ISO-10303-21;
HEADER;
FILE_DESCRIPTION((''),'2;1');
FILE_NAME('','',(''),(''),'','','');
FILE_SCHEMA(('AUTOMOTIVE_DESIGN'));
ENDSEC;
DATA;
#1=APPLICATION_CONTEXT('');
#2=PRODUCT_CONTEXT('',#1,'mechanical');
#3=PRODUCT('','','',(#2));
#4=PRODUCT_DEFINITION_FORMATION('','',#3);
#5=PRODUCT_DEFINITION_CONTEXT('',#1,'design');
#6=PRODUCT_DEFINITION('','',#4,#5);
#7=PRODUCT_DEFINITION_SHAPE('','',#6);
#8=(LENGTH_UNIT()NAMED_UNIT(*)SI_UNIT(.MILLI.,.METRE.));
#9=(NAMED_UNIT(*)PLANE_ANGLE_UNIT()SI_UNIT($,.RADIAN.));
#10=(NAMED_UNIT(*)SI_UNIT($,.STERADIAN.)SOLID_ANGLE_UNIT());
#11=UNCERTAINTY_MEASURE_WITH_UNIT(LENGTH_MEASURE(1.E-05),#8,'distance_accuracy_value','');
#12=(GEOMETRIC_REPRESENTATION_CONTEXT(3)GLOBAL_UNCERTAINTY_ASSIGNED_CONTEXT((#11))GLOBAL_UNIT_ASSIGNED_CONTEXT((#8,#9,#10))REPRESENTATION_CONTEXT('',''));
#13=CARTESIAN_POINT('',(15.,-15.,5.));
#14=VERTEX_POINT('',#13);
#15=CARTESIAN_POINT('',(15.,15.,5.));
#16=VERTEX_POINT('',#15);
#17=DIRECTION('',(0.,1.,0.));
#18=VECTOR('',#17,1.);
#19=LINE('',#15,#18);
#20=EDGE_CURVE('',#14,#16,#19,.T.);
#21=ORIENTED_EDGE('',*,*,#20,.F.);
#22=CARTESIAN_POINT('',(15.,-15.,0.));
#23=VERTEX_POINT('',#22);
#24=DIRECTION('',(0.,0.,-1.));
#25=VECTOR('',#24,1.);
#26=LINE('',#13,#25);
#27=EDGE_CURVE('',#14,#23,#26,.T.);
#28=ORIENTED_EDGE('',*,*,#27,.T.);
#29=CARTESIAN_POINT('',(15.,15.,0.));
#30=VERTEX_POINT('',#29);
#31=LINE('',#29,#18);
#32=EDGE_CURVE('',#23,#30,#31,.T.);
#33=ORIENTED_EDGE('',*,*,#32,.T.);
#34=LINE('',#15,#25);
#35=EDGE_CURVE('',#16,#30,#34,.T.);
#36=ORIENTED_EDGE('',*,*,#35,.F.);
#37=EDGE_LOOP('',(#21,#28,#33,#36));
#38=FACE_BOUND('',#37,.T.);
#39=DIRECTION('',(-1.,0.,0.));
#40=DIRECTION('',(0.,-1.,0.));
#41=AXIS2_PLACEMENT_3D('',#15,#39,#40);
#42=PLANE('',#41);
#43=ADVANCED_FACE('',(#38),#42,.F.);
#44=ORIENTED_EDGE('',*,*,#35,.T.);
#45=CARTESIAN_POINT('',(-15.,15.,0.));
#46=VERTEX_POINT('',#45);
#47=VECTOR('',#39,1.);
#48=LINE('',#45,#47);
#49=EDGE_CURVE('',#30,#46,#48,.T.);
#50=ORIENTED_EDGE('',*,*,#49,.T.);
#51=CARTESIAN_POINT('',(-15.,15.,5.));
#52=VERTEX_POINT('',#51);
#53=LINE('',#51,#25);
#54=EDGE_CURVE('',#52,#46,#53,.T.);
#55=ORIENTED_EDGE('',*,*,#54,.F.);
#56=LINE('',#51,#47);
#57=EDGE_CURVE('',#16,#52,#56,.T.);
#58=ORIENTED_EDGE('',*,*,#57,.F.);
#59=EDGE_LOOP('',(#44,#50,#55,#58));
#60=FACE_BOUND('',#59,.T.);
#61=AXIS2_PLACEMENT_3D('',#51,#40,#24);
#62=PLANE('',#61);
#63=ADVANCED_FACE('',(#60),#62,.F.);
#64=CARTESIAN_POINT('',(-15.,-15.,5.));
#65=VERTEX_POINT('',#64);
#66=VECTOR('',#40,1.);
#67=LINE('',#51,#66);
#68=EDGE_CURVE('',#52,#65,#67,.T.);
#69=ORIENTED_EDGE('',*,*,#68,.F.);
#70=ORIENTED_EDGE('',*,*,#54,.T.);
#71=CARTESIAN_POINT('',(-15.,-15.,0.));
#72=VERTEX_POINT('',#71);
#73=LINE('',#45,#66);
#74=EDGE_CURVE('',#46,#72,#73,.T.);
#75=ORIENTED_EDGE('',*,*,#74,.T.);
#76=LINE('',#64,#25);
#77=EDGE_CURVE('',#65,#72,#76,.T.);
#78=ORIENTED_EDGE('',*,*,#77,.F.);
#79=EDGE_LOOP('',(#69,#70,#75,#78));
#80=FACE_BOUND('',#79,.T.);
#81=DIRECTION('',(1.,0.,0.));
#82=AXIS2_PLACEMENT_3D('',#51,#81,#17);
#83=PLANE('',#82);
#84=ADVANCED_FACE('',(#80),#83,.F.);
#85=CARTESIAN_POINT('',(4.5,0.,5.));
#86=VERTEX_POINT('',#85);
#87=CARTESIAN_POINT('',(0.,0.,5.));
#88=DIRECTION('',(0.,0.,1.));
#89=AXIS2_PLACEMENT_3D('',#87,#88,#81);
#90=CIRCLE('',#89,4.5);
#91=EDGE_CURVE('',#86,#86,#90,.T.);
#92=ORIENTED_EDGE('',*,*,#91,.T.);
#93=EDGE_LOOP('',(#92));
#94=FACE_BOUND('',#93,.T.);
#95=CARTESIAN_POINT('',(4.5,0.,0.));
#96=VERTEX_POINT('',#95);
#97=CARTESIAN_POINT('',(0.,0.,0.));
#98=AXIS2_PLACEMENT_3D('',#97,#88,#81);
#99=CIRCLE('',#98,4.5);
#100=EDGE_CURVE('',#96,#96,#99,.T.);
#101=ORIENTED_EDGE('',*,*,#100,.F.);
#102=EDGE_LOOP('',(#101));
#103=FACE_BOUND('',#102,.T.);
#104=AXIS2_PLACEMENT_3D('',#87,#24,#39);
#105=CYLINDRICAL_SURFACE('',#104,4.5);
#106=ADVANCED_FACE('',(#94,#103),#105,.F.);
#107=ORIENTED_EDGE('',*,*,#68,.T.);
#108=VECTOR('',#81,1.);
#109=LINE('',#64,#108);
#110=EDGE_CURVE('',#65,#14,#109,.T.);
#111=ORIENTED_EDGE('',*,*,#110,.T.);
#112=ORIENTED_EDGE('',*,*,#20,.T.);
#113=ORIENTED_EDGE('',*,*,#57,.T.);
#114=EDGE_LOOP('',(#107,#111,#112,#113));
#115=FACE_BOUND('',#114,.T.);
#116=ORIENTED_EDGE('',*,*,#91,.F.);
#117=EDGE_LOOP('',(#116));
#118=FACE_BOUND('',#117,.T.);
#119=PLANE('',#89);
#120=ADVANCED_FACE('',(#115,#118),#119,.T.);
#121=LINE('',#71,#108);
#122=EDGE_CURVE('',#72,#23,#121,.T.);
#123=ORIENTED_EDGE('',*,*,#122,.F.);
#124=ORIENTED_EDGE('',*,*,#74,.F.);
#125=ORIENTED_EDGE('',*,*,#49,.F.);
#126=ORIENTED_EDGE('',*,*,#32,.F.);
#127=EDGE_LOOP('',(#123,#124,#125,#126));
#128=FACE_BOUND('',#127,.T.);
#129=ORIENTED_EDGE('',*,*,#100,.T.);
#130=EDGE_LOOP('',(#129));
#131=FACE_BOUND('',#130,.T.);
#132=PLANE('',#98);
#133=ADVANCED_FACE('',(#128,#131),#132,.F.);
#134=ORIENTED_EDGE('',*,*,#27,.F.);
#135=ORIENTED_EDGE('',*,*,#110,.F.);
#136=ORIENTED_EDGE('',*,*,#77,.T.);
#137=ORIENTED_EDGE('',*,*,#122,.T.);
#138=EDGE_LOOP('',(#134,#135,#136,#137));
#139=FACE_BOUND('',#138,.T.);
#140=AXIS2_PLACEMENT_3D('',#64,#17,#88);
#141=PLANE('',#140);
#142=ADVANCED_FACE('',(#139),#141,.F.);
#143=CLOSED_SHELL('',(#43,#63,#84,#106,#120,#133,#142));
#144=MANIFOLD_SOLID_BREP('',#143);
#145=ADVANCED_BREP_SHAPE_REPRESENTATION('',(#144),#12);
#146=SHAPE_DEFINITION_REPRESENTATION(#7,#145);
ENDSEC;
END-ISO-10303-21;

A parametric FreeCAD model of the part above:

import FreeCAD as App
import Part
import Sketcher

V = App.Vector
Q = App.Units.Quantity


def add_polygon(sketch, points):
    """Adds a closed chain of lines whose ends are joined by coincident constraints."""
    first, n = sketch.GeometryCount, len(points)
    for a, b in zip(points, points[1:] + points[:1]):
        sketch.addGeometry(Part.LineSegment(App.Vector(*a, 0), App.Vector(*b, 0)), False)
    for i in range(n):
        sketch.addConstraint(Sketcher.Constraint("Coincident", first + i, 2, first + (i + 1) % n, 1))

doc = App.newDocument("Part")
body = doc.addObject("PartDesign::Body", "Body")

sketch1 = body.newObject("Sketcher::SketchObject", "Sketch")
sketch1.AttachmentSupport = (doc.getObject("XY_Plane"), [""])
sketch1.MapMode = "FlatFace"
add_polygon(sketch1, [(-15, 15), (-15, -15), (15, -15), (15, 15)])
sketch1.addGeometry(Part.Circle(V(0, 0, 0), V(0, 0, 1), 4.5), False)
sketch1.addConstraint([
    Sketcher.Constraint("Vertical", 0),
    Sketcher.Constraint("Horizontal", 1),
    Sketcher.Constraint("Vertical", 2),
    Sketcher.Constraint("Horizontal", 3),
    Sketcher.Constraint("Coincident", 4, 3, -1, 1),
    Sketcher.Constraint("Symmetric", 0, 2, 2, 2, -1, 1),
    Sketcher.Constraint("Equal", 3, 0),
    Sketcher.Constraint("Diameter", 4, Q("9 mm")),
    Sketcher.Constraint("DistanceX", 1, 1, 1, 2, Q("30 mm")),
])
pad1 = body.newObject("PartDesign::Pad", "Pad")
pad1.Profile = sketch1
pad1.Length = 5

doc.recompute()
